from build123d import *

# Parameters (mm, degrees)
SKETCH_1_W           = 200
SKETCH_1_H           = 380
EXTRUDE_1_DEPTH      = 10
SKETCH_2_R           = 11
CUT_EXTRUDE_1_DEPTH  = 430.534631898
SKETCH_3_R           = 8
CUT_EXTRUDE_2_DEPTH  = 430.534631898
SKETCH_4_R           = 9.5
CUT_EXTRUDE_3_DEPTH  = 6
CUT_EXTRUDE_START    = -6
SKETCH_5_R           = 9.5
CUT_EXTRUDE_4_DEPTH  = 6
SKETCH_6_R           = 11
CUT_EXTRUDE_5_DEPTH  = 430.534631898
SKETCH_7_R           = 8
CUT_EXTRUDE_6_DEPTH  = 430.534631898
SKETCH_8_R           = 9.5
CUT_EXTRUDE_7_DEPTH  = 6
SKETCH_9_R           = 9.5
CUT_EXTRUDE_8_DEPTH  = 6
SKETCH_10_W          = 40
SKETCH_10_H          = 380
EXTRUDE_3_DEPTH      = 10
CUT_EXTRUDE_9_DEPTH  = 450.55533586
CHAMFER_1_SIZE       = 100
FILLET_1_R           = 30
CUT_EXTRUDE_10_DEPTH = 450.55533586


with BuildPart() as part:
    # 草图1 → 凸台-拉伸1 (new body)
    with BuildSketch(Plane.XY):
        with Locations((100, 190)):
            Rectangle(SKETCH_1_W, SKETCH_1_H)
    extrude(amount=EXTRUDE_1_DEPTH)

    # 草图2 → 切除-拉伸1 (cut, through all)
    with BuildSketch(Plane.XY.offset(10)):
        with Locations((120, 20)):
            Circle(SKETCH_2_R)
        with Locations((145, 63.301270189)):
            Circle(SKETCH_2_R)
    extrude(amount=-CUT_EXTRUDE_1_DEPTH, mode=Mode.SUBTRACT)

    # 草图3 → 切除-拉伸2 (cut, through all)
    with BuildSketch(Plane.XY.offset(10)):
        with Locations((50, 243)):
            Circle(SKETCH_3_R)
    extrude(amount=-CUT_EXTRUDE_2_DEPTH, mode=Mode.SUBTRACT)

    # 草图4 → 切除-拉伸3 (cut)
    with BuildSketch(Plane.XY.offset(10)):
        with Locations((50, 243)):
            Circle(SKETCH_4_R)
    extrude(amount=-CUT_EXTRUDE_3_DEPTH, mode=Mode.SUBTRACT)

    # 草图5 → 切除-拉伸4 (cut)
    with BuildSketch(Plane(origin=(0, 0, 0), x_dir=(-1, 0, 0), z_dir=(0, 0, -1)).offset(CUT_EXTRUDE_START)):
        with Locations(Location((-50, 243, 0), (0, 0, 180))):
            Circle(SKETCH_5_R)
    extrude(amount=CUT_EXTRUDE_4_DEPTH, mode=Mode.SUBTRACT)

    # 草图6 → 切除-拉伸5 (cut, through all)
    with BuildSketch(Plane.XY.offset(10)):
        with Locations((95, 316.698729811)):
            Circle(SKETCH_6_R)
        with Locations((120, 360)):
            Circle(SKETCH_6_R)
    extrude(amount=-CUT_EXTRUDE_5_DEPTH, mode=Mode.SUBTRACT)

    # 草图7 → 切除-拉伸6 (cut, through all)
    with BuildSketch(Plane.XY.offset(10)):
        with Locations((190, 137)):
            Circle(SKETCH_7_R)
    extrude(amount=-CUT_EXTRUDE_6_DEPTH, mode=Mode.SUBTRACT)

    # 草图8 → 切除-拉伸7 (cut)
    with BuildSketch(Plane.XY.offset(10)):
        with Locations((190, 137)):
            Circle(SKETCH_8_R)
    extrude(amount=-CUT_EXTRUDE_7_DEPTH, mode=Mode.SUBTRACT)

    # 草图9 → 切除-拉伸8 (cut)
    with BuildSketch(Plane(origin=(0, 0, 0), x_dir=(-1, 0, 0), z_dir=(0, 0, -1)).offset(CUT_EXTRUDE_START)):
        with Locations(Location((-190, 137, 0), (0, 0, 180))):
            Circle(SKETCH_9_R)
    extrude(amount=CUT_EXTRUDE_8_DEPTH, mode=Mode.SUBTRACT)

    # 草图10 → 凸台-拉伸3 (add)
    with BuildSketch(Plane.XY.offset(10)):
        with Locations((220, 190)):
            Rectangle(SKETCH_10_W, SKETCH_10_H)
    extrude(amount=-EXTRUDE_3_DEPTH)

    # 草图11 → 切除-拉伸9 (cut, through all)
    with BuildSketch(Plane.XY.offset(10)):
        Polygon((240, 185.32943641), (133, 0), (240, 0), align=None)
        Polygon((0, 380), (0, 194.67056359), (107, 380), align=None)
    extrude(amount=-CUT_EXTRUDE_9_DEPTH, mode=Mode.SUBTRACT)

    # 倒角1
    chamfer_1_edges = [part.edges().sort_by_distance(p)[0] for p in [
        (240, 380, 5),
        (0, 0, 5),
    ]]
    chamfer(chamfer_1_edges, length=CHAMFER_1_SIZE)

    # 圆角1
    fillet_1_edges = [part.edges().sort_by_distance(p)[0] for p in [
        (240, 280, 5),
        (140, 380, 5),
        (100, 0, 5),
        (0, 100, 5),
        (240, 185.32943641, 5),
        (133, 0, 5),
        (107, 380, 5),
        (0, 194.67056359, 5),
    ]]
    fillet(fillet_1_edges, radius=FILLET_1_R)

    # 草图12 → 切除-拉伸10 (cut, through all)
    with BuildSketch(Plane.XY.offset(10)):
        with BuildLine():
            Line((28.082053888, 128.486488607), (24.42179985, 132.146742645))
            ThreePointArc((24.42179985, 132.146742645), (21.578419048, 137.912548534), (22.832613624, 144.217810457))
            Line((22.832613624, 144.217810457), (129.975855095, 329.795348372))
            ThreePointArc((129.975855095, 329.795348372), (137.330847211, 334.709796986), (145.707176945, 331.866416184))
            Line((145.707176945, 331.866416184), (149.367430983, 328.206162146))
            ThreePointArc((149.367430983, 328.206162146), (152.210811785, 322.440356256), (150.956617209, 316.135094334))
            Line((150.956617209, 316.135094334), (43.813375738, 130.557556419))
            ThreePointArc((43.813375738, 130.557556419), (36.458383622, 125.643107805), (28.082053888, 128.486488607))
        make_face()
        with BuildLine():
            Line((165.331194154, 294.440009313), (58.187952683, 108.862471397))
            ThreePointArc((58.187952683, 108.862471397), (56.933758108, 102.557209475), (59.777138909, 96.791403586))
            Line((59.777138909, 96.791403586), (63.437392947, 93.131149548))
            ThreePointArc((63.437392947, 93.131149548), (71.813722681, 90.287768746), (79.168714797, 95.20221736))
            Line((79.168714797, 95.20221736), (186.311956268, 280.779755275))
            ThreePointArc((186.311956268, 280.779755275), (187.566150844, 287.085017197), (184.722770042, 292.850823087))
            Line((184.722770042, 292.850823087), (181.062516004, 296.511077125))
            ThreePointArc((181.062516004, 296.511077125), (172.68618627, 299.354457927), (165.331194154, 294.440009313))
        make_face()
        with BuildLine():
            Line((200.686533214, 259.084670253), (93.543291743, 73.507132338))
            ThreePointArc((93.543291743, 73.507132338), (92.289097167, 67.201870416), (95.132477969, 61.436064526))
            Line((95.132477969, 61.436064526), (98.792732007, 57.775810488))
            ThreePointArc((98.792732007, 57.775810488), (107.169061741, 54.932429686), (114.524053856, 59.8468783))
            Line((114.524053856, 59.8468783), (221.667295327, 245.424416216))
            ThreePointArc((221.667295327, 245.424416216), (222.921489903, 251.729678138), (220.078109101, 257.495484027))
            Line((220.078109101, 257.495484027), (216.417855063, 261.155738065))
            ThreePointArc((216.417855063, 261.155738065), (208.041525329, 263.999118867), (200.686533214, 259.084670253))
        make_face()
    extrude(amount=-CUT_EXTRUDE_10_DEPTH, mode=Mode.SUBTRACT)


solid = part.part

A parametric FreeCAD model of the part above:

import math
import FreeCAD as App
import Part
import Sketcher

V = App.Vector
Q = App.Units.Quantity


def edges_at(feature, points):
    """Names of the edges that pass closest to the given points."""
    edges = feature.Shape.Edges
    near = lambda p: min(range(len(edges)), key=lambda i: edges[i].distToShape(Part.Vertex(*p))[0])
    return sorted({f"Edge{near(p) + 1}" for p in points})


def add_polygon(sketch, points):
    """Adds a closed chain of lines whose ends are joined by coincident constraints."""
    first, n = sketch.GeometryCount, len(points)
    for a, b in zip(points, points[1:] + points[:1]):
        sketch.addGeometry(Part.LineSegment(App.Vector(*a, 0), App.Vector(*b, 0)), False)
    for i in range(n):
        sketch.addConstraint(Sketcher.Constraint("Coincident", first + i, 2, first + (i + 1) % n, 1))

doc = App.newDocument("Part")
params = doc.addObject("Spreadsheet::Sheet", "Params")
for row, (alias, value) in enumerate([
    ("sketch1_width", "200 mm"),
    ("sketch1_height", "380 mm"),
    ("pad1_length", "10 mm"),
    ("sketch2_diameter", "22 mm"),
    ("sketch3_diameter", "16 mm"),
    ("sketch4_diameter", "19 mm"),
    ("pocket3_length", "6 mm"),
    ("sketch5_diameter", "19 mm"),
    ("pocket4_length", "6 mm"),
    ("sketch6_diameter", "22 mm"),
    ("sketch7_diameter", "16 mm"),
    ("sketch8_diameter", "19 mm"),
    ("pocket7_length", "6 mm"),
    ("sketch9_diameter", "19 mm"),
    ("pocket8_length", "6 mm"),
    ("sketch10_width", "40 mm"),
    ("sketch10_height", "380 mm"),
    ("pad2_length", "10 mm"),
    ("sketch11_width", "107 mm"),
    ("chamfer_size", "100 mm"),
    ("fillet_radius", "30 mm"),
    ("sketch12_radius", "10 mm"),
], start=1):
    params.set(f"A{row}", alias)
    params.set(f"B{row}", "=" + value)
    params.setAlias(f"B{row}", alias)

body = doc.addObject("PartDesign::Body", "Body")

sketch1 = body.newObject("Sketcher::SketchObject", "Sketch")
sketch1.AttachmentSupport = (doc.getObject("XY_Plane"), [""])
sketch1.MapMode = "FlatFace"
add_polygon(sketch1, [(0, 380), (0, 0), (200, 0), (200, 380)])
sketch1.addConstraint(Sketcher.Constraint("Vertical", 0))
sketch1.addConstraint(Sketcher.Constraint("Horizontal", 1))
sketch1.addConstraint(Sketcher.Constraint("Vertical", 2))
sketch1.addConstraint(Sketcher.Constraint("Horizontal", 3))
sketch1.addConstraint(Sketcher.Constraint("Coincident", 0, 2, -1, 1))
sketch1.addConstraint(Sketcher.Constraint("DistanceX", 1, 1, 1, 2, 200.0))
sketch1.addConstraint(Sketcher.Constraint("DistanceY", 0, 2, 0, 1, 380.0))
sketch1.setExpression("Constraints[9]", "Params.sketch1_width")
sketch1.setExpression("Constraints[10]", "Params.sketch1_height")
pad1 = body.newObject("PartDesign::Pad", "Pad")
pad1.Profile = sketch1
pad1.setExpression("Length", "Params.pad1_length")

sketch2 = body.newObject("Sketcher::SketchObject", "Sketch001")
sketch2.AttachmentSupport = (doc.getObject("XY_Plane"), [""])
sketch2.MapMode = "FlatFace"
sketch2.AttachmentOffset = App.Placement(V(0, 0, 10), App.Rotation())
sketch2.addGeometry(Part.Circle(V(120, 20, 0), V(0, 0, 1), 11), False)
sketch2.addGeometry(Part.Circle(V(145, 63.30127, 0), V(0, 0, 1), 11), False)
sketch2.addConstraint(Sketcher.Constraint("Equal", 0, 1))
sketch2.addConstraint(Sketcher.Constraint("Diameter", 0, 22.0))
sketch2.addConstraint(Sketcher.Constraint("DistanceX", -1, 1, 0, 3, 120.0))
sketch2.addConstraint(Sketcher.Constraint("DistanceY", -1, 1, 0, 3, 20.0))
sketch2.addConstraint(Sketcher.Constraint("DistanceX", -1, 1, 1, 3, 145.0))
sketch2.addConstraint(Sketcher.Constraint("DistanceY", -1, 1, 1, 3, 63.30127))
sketch2.setExpression("Constraints[1]", "Params.sketch2_diameter")
pocket1 = body.newObject("PartDesign::Pocket", "Pocket")
pocket1.Profile = sketch2
pocket1.Type = "ThroughAll"

sketch3 = body.newObject("Sketcher::SketchObject", "Sketch002")
sketch3.AttachmentSupport = (doc.getObject("XY_Plane"), [""])
sketch3.MapMode = "FlatFace"
sketch3.AttachmentOffset = App.Placement(V(0, 0, 10), App.Rotation())
sketch3.addGeometry(Part.Circle(V(50, 243, 0), V(0, 0, 1), 8), False)
sketch3.addConstraint(Sketcher.Constraint("Diameter", 0, 16.0))
sketch3.addConstraint(Sketcher.Constraint("DistanceX", -1, 1, 0, 3, 50.0))
sketch3.addConstraint(Sketcher.Constraint("DistanceY", -1, 1, 0, 3, 243.0))
sketch3.setExpression("Constraints[0]", "Params.sketch3_diameter")
pocket2 = body.newObject("PartDesign::Pocket", "Pocket001")
pocket2.Profile = sketch3
pocket2.Type = "ThroughAll"

sketch4 = body.newObject("Sketcher::SketchObject", "Sketch003")
sketch4.AttachmentSupport = (doc.getObject("XY_Plane"), [""])
sketch4.MapMode = "FlatFace"
sketch4.AttachmentOffset = App.Placement(V(0, 0, 10), App.Rotation())
sketch4.addGeometry(Part.Circle(V(50, 243, 0), V(0, 0, 1), 9.5), False)
sketch4.addConstraint(Sketcher.Constraint("Diameter", 0, 19.0))
sketch4.addConstraint(Sketcher.Constraint("DistanceX", -1, 1, 0, 3, 50.0))
sketch4.addConstraint(Sketcher.Constraint("DistanceY", -1, 1, 0, 3, 243.0))
sketch4.setExpression("Constraints[0]", "Params.sketch4_diameter")
pocket3 = body.newObject("PartDesign::Pocket", "Pocket002")
pocket3.Profile = sketch4
pocket3.setExpression("Length", "Params.pocket3_length")

sketch5 = body.newObject("Sketcher::SketchObject", "Sketch004")
sketch5.AttachmentSupport = (doc.getObject("XY_Plane"), [""])
sketch5.MapMode = "FlatFace"
sketch5.AttachmentOffset = App.Placement(V(0, 0, 6), App.Rotation())
sketch5.addGeometry(Part.Circle(V(50, 243, 0), V(0, 0, 1), 9.5), False)
sketch5.addConstraint(Sketcher.Constraint("Diameter", 0, 19.0))
sketch5.addConstraint(Sketcher.Constraint("DistanceX", -1, 1, 0, 3, 50.0))
sketch5.addConstraint(Sketcher.Constraint("DistanceY", -1, 1, 0, 3, 243.0))
sketch5.setExpression("Constraints[0]", "Params.sketch5_diameter")
pocket4 = body.newObject("PartDesign::Pocket", "Pocket003")
pocket4.Profile = sketch5
pocket4.setExpression("Length", "Params.pocket4_length")

sketch6 = body.newObject("Sketcher::SketchObject", "Sketch005")
sketch6.AttachmentSupport = (doc.getObject("XY_Plane"), [""])
sketch6.MapMode = "FlatFace"
sketch6.AttachmentOffset = App.Placement(V(0, 0, 10), App.Rotation())
sketch6.addGeometry(Part.Circle(V(95, 316.69873, 0), V(0, 0, 1), 11), False)
sketch6.addGeometry(Part.Circle(V(120, 360, 0), V(0, 0, 1), 11), False)
sketch6.addConstraint(Sketcher.Constraint("Equal", 0, 1))
sketch6.addConstraint(Sketcher.Constraint("Diameter", 0, 22.0))
sketch6.addConstraint(Sketcher.Constraint("DistanceX", -1, 1, 0, 3, 95.0))
sketch6.addConstraint(Sketcher.Constraint("DistanceX", -1, 1, 1, 3, 120.0))
sketch6.addConstraint(Sketcher.Constraint("DistanceY", -1, 1, 1, 3, 360.0))
sketch6.addConstraint(Sketcher.Constraint("DistanceY", -1, 1, 0, 3, 316.69873))
sketch6.setExpression("Constraints[1]", "Params.sketch6_diameter")
pocket5 = body.newObject("PartDesign::Pocket", "Pocket004")
pocket5.Profile = sketch6
pocket5.Type = "ThroughAll"

sketch7 = body.newObject("Sketcher::SketchObject", "Sketch006")
sketch7.AttachmentSupport = (doc.getObject("XY_Plane"), [""])
sketch7.MapMode = "FlatFace"
sketch7.AttachmentOffset = App.Placement(V(0, 0, 10), App.Rotation())
sketch7.addGeometry(Part.Circle(V(190, 137, 0), V(0, 0, 1), 8), False)
sketch7.addConstraint(Sketcher.Constraint("Diameter", 0, 16.0))
sketch7.addConstraint(Sketcher.Constraint("DistanceX", -1, 1, 0, 3, 190.0))
sketch7.addConstraint(Sketcher.Constraint("DistanceY", -1, 1, 0, 3, 137.0))
sketch7.setExpression("Constraints[0]", "Params.sketch7_diameter")
pocket6 = body.newObject("PartDesign::Pocket", "Pocket005")
pocket6.Profile = sketch7
pocket6.Type = "ThroughAll"

sketch8 = body.newObject("Sketcher::SketchObject", "Sketch007")
sketch8.AttachmentSupport = (doc.getObject("XY_Plane"), [""])
sketch8.MapMode = "FlatFace"
sketch8.AttachmentOffset = App.Placement(V(0, 0, 10), App.Rotation())
sketch8.addGeometry(Part.Circle(V(190, 137, 0), V(0, 0, 1), 9.5), False)
sketch8.addConstraint(Sketcher.Constraint("Diameter", 0, 19.0))
sketch8.addConstraint(Sketcher.Constraint("DistanceX", -1, 1, 0, 3, 190.0))
sketch8.addConstraint(Sketcher.Constraint("DistanceY", -1, 1, 0, 3, 137.0))
sketch8.setExpression("Constraints[0]", "Params.sketch8_diameter")
pocket7 = body.newObject("PartDesign::Pocket", "Pocket006")
pocket7.Profile = sketch8
pocket7.setExpression("Length", "Params.pocket7_length")

sketch9 = body.newObject("Sketcher::SketchObject", "Sketch008")
sketch9.AttachmentSupport = (doc.getObject("XY_Plane"), [""])
sketch9.MapMode = "FlatFace"
sketch9.AttachmentOffset = App.Placement(V(0, 0, 6), App.Rotation())
sketch9.addGeometry(Part.Circle(V(190, 137, 0), V(0, 0, 1), 9.5), False)
sketch9.addConstraint(Sketcher.Constraint("Diameter", 0, 19.0))
sketch9.addConstraint(Sketcher.Constraint("DistanceX", -1, 1, 0, 3, 190.0))
sketch9.addConstraint(Sketcher.Constraint("DistanceY", -1, 1, 0, 3, 137.0))
sketch9.setExpression("Constraints[0]", "Params.sketch9_diameter")
pocket8 = body.newObject("PartDesign::Pocket", "Pocket007")
pocket8.Profile = sketch9
pocket8.setExpression("Length", "Params.pocket8_length")

sketch10 = body.newObject("Sketcher::SketchObject", "Sketch009")
sketch10.AttachmentSupport = (doc.getObject("XY_Plane"), [""])
sketch10.MapMode = "FlatFace"
sketch10.AttachmentOffset = App.Placement(V(0, 0, 10), App.Rotation())
add_polygon(sketch10, [(200, 380), (200, 0), (240, 0), (240, 380)])
sketch10.addConstraint(Sketcher.Constraint("Vertical", 0))
sketch10.addConstraint(Sketcher.Constraint("Horizontal", 1))
sketch10.addConstraint(Sketcher.Constraint("Vertical", 2))
sketch10.addConstraint(Sketcher.Constraint("Horizontal", 3))
sketch10.addConstraint(Sketcher.Constraint("PointOnObject", 0, 2, -1))
sketch10.addConstraint(Sketcher.Constraint("DistanceX", 1, 1, 1, 2, 40.0))
sketch10.addConstraint(Sketcher.Constraint("DistanceY", 0, 2, 0, 1, 380.0))
sketch10.addConstraint(Sketcher.Constraint("DistanceX", -1, 1, 0, 2, 200.0))
sketch10.setExpression("Constraints[9]", "Params.sketch10_width")
sketch10.setExpression("Constraints[10]", "Params.sketch10_height")
pad2 = body.newObject("PartDesign::Pad", "Pad001")
pad2.Profile = sketch10
pad2.setExpression("Length", "Params.pad2_length")
pad2.Reversed = True

sketch11 = body.newObject("Sketcher::SketchObject", "Sketch010")
sketch11.AttachmentSupport = (doc.getObject("XY_Plane"), [""])
sketch11.MapMode = "FlatFace"
sketch11.AttachmentOffset = App.Placement(V(0, 0, 10), App.Rotation())
add_polygon(sketch11, [(240, 185.329436), (133, 0), (240, 0)])
add_polygon(sketch11, [(0, 380), (0, 194.670564), (107, 380)])
sketch11.addConstraint(Sketcher.Constraint("Horizontal", 1))
sketch11.addConstraint(Sketcher.Constraint("Vertical", 2))
sketch11.addConstraint(Sketcher.Constraint("Vertical", 3))
sketch11.addConstraint(Sketcher.Constraint("Horizontal", 5))
sketch11.addConstraint(Sketcher.Constraint("PointOnObject", 0, 2, -1))
sketch11.addConstraint(Sketcher.Constraint("PointOnObject", 3, 2, -2))
sketch11.addConstraint(Sketcher.Constraint("Parallel", 0, 4))
sketch11.addConstraint(Sketcher.Constraint("Equal", 1, 5))
sketch11.addConstraint(Sketcher.Constraint("DistanceX", 1, 1, 1, 2, 107.0))
sketch11.addConstraint(Sketcher.Constraint("Angle", 0, Q("-120 deg")))
sketch11.addConstraint(Sketcher.Constraint("DistanceX", -1, 1, 0, 2, 133.0))
sketch11.addConstraint(Sketcher.Constraint("DistanceY", -1, 1, 4, 2, 380.0))
sketch11.setExpression("Constraints[14]", "Params.sketch11_width")
pocket9 = body.newObject("PartDesign::Pocket", "Pocket008")
pocket9.Profile = sketch11
pocket9.Type = "ThroughAll"
doc.recompute()

chamfer = body.newObject("PartDesign::Chamfer", "Chamfer")
chamfer.Base = (pocket9, edges_at(pocket9, [(240, 380, 5), (0, 0, 5)]))
chamfer.setExpression("Size", "Params.chamfer_size")
doc.recompute()

fillet = body.newObject("PartDesign::Fillet", "Fillet")
fillet.Base = (chamfer, edges_at(chamfer, [
    (240, 280, 5),
    (140, 380, 5),
    (100, 0, 5),
    (0, 100, 5),
    (240, 185.329, 5),
    (133, 0, 5),
    (107, 380, 5),
    (0, 194.671, 5),
]))
fillet.setExpression("Radius", "Params.fillet_radius")

sketch12 = body.newObject("Sketcher::SketchObject", "Sketch011")
sketch12.AttachmentSupport = (doc.getObject("XY_Plane"), [""])
sketch12.MapMode = "FlatFace"
sketch12.AttachmentOffset = App.Placement(V(0, 0, 10), App.Rotation())
sketch12.addGeometry(Part.LineSegment(V(24.4218, 132.146743, 0), V(28.082054, 128.486489, 0)), False)
sketch12.addGeometry(Part.ArcOfCircle(Part.Circle(V(35.153122, 135.557556, 0), V(0, 0, 1), 10), math.radians(-135), math.radians(-30)), False)
sketch12.addGeometry(Part.LineSegment(V(43.813376, 130.557556, 0), V(150.956617, 316.135094, 0)), False)
sketch12.addGeometry(Part.ArcOfCircle(Part.Circle(V(142.296363, 321.135094, 0), V(0, 0, 1), 10), math.radians(-30), math.radians(45)), False)
sketch12.addGeometry(Part.LineSegment(V(149.367431, 328.206162, 0), V(145.707177, 331.866416, 0)), False)
sketch12.addGeometry(Part.ArcOfCircle(Part.Circle(V(138.636109, 324.795348, 0), V(0, 0, 1), 10), math.radians(45), math.radians(150)), False)
sketch12.addGeometry(Part.LineSegment(V(129.975855, 329.795348, 0), V(22.832614, 144.21781, 0)), False)
sketch12.addGeometry(Part.ArcOfCircle(Part.Circle(V(31.492868, 139.21781, 0), V(0, 0, 1), 10), math.radians(150), math.radians(225)), False)
sketch12.addGeometry(Part.LineSegment(V(165.331194, 294.440009, 0), V(58.187953, 108.862471, 0)), False)
sketch12.addGeometry(Part.ArcOfCircle(Part.Circle(V(66.848207, 103.862471, 0), V(0, 0, 1), 10), math.radians(150), math.radians(225)), False)
sketch12.addGeometry(Part.LineSegment(V(59.777139, 96.791404, 0), V(63.437393, 93.13115, 0)), False)
sketch12.addGeometry(Part.ArcOfCircle(Part.Circle(V(70.508461, 100.202217, 0), V(0, 0, 1), 10), math.radians(-135), math.radians(-30)), False)
sketch12.addGeometry(Part.LineSegment(V(79.168715, 95.202217, 0), V(186.311956, 280.779755, 0)), False)
sketch12.addGeometry(Part.ArcOfCircle(Part.Circle(V(177.651702, 285.779755, 0), V(0, 0, 1), 10), math.radians(-30), math.radians(45)), False)
sketch12.addGeometry(Part.LineSegment(V(184.72277, 292.850823, 0), V(181.062516, 296.511077, 0)), False)
sketch12.addGeometry(Part.ArcOfCircle(Part.Circle(V(173.991448, 289.440009, 0), V(0, 0, 1), 10), math.radians(45), math.radians(150)), False)
sketch12.addGeometry(Part.LineSegment(V(200.686533, 259.08467, 0), V(93.543292, 73.507132, 0)), False)
sketch12.addGeometry(Part.ArcOfCircle(Part.Circle(V(102.203546, 68.507132, 0), V(0, 0, 1), 10), math.radians(150), math.radians(225)), False)
sketch12.addGeometry(Part.LineSegment(V(95.132478, 61.436065, 0), V(98.792732, 57.77581, 0)), False)
sketch12.addGeometry(Part.ArcOfCircle(Part.Circle(V(105.8638, 64.846878, 0), V(0, 0, 1), 10), math.radians(-135), math.radians(-30)), False)
sketch12.addGeometry(Part.LineSegment(V(114.524054, 59.846878, 0), V(221.667295, 245.424416, 0)), False)
sketch12.addGeometry(Part.ArcOfCircle(Part.Circle(V(213.007041, 250.424416, 0), V(0, 0, 1), 10), math.radians(-30), math.radians(45)), False)
sketch12.addGeometry(Part.LineSegment(V(220.078109, 257.495484, 0), V(216.417855, 261.155738, 0)), False)
sketch12.addGeometry(Part.ArcOfCircle(Part.Circle(V(209.346787, 254.08467, 0), V(0, 0, 1), 10), math.radians(45), math.radians(150)), False)
sketch12.addConstraint(Sketcher.Constraint("Tangent", 0, 2, 1, 1))
sketch12.addConstraint(Sketcher.Constraint("Tangent", 1, 2, 2, 1))
sketch12.addConstraint(Sketcher.Constraint("Tangent", 2, 2, 3, 1))
sketch12.addConstraint(Sketcher.Constraint("Tangent", 3, 2, 4, 1))
sketch12.addConstraint(Sketcher.Constraint("Tangent", 4, 2, 5, 1))
sketch12.addConstraint(Sketcher.Constraint("Tangent", 5, 2, 6, 1))
sketch12.addConstraint(Sketcher.Constraint("Tangent", 6, 2, 7, 1))
sketch12.addConstraint(Sketcher.Constraint("Tangent", 7, 2, 0, 1))
sketch12.addConstraint(Sketcher.Constraint("Tangent", 8, 2, 9, 1))
sketch12.addConstraint(Sketcher.Constraint("Tangent", 9, 2, 10, 1))
sketch12.addConstraint(Sketcher.Constraint("Tangent", 10, 2, 11, 1))
sketch12.addConstraint(Sketcher.Constraint("Tangent", 11, 2, 12, 1))
sketch12.addConstraint(Sketcher.Constraint("Tangent", 12, 2, 13, 1))
sketch12.addConstraint(Sketcher.Constraint("Tangent", 13, 2, 14, 1))
sketch12.addConstraint(Sketcher.Constraint("Tangent", 14, 2, 15, 1))
sketch12.addConstraint(Sketcher.Constraint("Tangent", 15, 2, 8, 1))
sketch12.addConstraint(Sketcher.Constraint("Tangent", 16, 2, 17, 1))
sketch12.addConstraint(Sketcher.Constraint("Tangent", 17, 2, 18, 1))
sketch12.addConstraint(Sketcher.Constraint("Tangent", 18, 2, 19, 1))
sketch12.addConstraint(Sketcher.Constraint("Tangent", 19, 2, 20, 1))
sketch12.addConstraint(Sketcher.Constraint("Tangent", 20, 2, 21, 1))
sketch12.addConstraint(Sketcher.Constraint("Tangent", 21, 2, 22, 1))
sketch12.addConstraint(Sketcher.Constraint("Tangent", 22, 2, 23, 1))
sketch12.addConstraint(Sketcher.Constraint("Tangent", 23, 2, 16, 1))
sketch12.addConstraint(Sketcher.Constraint("Equal", 1, 3))
sketch12.addConstraint(Sketcher.Constraint("Equal", 3, 5))
sketch12.addConstraint(Sketcher.Constraint("Equal", 5, 7))
sketch12.addConstraint(Sketcher.Constraint("Equal", 7, 9))
sketch12.addConstraint(Sketcher.Constraint("Equal", 9, 11))
sketch12.addConstraint(Sketcher.Constraint("Equal", 11, 13))
sketch12.addConstraint(Sketcher.Constraint("Equal", 13, 15))
sketch12.addConstraint(Sketcher.Constraint("Equal", 15, 17))
sketch12.addConstraint(Sketcher.Constraint("Equal", 17, 19))
sketch12.addConstraint(Sketcher.Constraint("Equal", 19, 21))
sketch12.addConstraint(Sketcher.Constraint("Equal", 21, 23))
sketch12.addConstraint(Sketcher.Constraint("Parallel", 0, 4))
sketch12.addConstraint(Sketcher.Constraint("Parallel", 2, 6))
sketch12.addConstraint(Sketcher.Constraint("Parallel", 6, 8))
sketch12.addConstraint(Sketcher.Constraint("Parallel", 4, 10))
sketch12.addConstraint(Sketcher.Constraint("Parallel", 8, 12))
sketch12.addConstraint(Sketcher.Constraint("Parallel", 10, 14))
sketch12.addConstraint(Sketcher.Constraint("Parallel", 12, 16))
sketch12.addConstraint(Sketcher.Constraint("Parallel", 14, 18))
sketch12.addConstraint(Sketcher.Constraint("Parallel", 16, 20))
sketch12.addConstraint(Sketcher.Constraint("Parallel", 18, 22))
sketch12.addConstraint(Sketcher.Constraint("Equal", 6, 8))
sketch12.addConstraint(Sketcher.Constraint("Equal", 4, 10))
sketch12.addConstraint(Sketcher.Constraint("Equal", 12, 16))
sketch12.addConstraint(Sketcher.Constraint("Equal", 14, 18))
sketch12.addConstraint(Sketcher.Constraint("Radius", 1, 10.0))
sketch12.addConstraint(Sketcher.Constraint("Angle", 0, Q("-45 deg")))
sketch12.addConstraint(Sketcher.Constraint("Angle", 2, Q("60 deg")))
sketch12.addConstraint(Sketcher.Constraint("DistanceX", -1, 1, 19, 3, 105.8638))
sketch12.addConstraint(Sketcher.Constraint("DistanceX", -1, 1, 7, 2, 24.4218))
sketch12.addConstraint(Sketcher.Constraint("DistanceY", 1, 3, 13, 3, 150.222199))
sketch12.addConstraint(Sketcher.Constraint("DistanceX", 0, 2, 8, 2, 30.105899))
sketch12.addConstraint(Sketcher.Constraint("DistanceX", 10, 2, 16, 2, 30.105899))
sketch12.addConstraint(Sketcher.Constraint("DistanceX", -1, 1, 5, 3, 138.636109))
sketch12.addConstraint(Sketcher.Constraint("DistanceY", -1, 1, 5, 3, 324.795348))
sketch12.addConstraint(Sketcher.Constraint("DistanceY", -1, 1, 19, 3, 64.846878))
sketch12.setExpression("Constraints[49]", "Params.sketch12_radius")
pocket10 = body.newObject("PartDesign::Pocket", "Pocket009")
pocket10.Profile = sketch12
pocket10.Type = "ThroughAll"

doc.recompute()
